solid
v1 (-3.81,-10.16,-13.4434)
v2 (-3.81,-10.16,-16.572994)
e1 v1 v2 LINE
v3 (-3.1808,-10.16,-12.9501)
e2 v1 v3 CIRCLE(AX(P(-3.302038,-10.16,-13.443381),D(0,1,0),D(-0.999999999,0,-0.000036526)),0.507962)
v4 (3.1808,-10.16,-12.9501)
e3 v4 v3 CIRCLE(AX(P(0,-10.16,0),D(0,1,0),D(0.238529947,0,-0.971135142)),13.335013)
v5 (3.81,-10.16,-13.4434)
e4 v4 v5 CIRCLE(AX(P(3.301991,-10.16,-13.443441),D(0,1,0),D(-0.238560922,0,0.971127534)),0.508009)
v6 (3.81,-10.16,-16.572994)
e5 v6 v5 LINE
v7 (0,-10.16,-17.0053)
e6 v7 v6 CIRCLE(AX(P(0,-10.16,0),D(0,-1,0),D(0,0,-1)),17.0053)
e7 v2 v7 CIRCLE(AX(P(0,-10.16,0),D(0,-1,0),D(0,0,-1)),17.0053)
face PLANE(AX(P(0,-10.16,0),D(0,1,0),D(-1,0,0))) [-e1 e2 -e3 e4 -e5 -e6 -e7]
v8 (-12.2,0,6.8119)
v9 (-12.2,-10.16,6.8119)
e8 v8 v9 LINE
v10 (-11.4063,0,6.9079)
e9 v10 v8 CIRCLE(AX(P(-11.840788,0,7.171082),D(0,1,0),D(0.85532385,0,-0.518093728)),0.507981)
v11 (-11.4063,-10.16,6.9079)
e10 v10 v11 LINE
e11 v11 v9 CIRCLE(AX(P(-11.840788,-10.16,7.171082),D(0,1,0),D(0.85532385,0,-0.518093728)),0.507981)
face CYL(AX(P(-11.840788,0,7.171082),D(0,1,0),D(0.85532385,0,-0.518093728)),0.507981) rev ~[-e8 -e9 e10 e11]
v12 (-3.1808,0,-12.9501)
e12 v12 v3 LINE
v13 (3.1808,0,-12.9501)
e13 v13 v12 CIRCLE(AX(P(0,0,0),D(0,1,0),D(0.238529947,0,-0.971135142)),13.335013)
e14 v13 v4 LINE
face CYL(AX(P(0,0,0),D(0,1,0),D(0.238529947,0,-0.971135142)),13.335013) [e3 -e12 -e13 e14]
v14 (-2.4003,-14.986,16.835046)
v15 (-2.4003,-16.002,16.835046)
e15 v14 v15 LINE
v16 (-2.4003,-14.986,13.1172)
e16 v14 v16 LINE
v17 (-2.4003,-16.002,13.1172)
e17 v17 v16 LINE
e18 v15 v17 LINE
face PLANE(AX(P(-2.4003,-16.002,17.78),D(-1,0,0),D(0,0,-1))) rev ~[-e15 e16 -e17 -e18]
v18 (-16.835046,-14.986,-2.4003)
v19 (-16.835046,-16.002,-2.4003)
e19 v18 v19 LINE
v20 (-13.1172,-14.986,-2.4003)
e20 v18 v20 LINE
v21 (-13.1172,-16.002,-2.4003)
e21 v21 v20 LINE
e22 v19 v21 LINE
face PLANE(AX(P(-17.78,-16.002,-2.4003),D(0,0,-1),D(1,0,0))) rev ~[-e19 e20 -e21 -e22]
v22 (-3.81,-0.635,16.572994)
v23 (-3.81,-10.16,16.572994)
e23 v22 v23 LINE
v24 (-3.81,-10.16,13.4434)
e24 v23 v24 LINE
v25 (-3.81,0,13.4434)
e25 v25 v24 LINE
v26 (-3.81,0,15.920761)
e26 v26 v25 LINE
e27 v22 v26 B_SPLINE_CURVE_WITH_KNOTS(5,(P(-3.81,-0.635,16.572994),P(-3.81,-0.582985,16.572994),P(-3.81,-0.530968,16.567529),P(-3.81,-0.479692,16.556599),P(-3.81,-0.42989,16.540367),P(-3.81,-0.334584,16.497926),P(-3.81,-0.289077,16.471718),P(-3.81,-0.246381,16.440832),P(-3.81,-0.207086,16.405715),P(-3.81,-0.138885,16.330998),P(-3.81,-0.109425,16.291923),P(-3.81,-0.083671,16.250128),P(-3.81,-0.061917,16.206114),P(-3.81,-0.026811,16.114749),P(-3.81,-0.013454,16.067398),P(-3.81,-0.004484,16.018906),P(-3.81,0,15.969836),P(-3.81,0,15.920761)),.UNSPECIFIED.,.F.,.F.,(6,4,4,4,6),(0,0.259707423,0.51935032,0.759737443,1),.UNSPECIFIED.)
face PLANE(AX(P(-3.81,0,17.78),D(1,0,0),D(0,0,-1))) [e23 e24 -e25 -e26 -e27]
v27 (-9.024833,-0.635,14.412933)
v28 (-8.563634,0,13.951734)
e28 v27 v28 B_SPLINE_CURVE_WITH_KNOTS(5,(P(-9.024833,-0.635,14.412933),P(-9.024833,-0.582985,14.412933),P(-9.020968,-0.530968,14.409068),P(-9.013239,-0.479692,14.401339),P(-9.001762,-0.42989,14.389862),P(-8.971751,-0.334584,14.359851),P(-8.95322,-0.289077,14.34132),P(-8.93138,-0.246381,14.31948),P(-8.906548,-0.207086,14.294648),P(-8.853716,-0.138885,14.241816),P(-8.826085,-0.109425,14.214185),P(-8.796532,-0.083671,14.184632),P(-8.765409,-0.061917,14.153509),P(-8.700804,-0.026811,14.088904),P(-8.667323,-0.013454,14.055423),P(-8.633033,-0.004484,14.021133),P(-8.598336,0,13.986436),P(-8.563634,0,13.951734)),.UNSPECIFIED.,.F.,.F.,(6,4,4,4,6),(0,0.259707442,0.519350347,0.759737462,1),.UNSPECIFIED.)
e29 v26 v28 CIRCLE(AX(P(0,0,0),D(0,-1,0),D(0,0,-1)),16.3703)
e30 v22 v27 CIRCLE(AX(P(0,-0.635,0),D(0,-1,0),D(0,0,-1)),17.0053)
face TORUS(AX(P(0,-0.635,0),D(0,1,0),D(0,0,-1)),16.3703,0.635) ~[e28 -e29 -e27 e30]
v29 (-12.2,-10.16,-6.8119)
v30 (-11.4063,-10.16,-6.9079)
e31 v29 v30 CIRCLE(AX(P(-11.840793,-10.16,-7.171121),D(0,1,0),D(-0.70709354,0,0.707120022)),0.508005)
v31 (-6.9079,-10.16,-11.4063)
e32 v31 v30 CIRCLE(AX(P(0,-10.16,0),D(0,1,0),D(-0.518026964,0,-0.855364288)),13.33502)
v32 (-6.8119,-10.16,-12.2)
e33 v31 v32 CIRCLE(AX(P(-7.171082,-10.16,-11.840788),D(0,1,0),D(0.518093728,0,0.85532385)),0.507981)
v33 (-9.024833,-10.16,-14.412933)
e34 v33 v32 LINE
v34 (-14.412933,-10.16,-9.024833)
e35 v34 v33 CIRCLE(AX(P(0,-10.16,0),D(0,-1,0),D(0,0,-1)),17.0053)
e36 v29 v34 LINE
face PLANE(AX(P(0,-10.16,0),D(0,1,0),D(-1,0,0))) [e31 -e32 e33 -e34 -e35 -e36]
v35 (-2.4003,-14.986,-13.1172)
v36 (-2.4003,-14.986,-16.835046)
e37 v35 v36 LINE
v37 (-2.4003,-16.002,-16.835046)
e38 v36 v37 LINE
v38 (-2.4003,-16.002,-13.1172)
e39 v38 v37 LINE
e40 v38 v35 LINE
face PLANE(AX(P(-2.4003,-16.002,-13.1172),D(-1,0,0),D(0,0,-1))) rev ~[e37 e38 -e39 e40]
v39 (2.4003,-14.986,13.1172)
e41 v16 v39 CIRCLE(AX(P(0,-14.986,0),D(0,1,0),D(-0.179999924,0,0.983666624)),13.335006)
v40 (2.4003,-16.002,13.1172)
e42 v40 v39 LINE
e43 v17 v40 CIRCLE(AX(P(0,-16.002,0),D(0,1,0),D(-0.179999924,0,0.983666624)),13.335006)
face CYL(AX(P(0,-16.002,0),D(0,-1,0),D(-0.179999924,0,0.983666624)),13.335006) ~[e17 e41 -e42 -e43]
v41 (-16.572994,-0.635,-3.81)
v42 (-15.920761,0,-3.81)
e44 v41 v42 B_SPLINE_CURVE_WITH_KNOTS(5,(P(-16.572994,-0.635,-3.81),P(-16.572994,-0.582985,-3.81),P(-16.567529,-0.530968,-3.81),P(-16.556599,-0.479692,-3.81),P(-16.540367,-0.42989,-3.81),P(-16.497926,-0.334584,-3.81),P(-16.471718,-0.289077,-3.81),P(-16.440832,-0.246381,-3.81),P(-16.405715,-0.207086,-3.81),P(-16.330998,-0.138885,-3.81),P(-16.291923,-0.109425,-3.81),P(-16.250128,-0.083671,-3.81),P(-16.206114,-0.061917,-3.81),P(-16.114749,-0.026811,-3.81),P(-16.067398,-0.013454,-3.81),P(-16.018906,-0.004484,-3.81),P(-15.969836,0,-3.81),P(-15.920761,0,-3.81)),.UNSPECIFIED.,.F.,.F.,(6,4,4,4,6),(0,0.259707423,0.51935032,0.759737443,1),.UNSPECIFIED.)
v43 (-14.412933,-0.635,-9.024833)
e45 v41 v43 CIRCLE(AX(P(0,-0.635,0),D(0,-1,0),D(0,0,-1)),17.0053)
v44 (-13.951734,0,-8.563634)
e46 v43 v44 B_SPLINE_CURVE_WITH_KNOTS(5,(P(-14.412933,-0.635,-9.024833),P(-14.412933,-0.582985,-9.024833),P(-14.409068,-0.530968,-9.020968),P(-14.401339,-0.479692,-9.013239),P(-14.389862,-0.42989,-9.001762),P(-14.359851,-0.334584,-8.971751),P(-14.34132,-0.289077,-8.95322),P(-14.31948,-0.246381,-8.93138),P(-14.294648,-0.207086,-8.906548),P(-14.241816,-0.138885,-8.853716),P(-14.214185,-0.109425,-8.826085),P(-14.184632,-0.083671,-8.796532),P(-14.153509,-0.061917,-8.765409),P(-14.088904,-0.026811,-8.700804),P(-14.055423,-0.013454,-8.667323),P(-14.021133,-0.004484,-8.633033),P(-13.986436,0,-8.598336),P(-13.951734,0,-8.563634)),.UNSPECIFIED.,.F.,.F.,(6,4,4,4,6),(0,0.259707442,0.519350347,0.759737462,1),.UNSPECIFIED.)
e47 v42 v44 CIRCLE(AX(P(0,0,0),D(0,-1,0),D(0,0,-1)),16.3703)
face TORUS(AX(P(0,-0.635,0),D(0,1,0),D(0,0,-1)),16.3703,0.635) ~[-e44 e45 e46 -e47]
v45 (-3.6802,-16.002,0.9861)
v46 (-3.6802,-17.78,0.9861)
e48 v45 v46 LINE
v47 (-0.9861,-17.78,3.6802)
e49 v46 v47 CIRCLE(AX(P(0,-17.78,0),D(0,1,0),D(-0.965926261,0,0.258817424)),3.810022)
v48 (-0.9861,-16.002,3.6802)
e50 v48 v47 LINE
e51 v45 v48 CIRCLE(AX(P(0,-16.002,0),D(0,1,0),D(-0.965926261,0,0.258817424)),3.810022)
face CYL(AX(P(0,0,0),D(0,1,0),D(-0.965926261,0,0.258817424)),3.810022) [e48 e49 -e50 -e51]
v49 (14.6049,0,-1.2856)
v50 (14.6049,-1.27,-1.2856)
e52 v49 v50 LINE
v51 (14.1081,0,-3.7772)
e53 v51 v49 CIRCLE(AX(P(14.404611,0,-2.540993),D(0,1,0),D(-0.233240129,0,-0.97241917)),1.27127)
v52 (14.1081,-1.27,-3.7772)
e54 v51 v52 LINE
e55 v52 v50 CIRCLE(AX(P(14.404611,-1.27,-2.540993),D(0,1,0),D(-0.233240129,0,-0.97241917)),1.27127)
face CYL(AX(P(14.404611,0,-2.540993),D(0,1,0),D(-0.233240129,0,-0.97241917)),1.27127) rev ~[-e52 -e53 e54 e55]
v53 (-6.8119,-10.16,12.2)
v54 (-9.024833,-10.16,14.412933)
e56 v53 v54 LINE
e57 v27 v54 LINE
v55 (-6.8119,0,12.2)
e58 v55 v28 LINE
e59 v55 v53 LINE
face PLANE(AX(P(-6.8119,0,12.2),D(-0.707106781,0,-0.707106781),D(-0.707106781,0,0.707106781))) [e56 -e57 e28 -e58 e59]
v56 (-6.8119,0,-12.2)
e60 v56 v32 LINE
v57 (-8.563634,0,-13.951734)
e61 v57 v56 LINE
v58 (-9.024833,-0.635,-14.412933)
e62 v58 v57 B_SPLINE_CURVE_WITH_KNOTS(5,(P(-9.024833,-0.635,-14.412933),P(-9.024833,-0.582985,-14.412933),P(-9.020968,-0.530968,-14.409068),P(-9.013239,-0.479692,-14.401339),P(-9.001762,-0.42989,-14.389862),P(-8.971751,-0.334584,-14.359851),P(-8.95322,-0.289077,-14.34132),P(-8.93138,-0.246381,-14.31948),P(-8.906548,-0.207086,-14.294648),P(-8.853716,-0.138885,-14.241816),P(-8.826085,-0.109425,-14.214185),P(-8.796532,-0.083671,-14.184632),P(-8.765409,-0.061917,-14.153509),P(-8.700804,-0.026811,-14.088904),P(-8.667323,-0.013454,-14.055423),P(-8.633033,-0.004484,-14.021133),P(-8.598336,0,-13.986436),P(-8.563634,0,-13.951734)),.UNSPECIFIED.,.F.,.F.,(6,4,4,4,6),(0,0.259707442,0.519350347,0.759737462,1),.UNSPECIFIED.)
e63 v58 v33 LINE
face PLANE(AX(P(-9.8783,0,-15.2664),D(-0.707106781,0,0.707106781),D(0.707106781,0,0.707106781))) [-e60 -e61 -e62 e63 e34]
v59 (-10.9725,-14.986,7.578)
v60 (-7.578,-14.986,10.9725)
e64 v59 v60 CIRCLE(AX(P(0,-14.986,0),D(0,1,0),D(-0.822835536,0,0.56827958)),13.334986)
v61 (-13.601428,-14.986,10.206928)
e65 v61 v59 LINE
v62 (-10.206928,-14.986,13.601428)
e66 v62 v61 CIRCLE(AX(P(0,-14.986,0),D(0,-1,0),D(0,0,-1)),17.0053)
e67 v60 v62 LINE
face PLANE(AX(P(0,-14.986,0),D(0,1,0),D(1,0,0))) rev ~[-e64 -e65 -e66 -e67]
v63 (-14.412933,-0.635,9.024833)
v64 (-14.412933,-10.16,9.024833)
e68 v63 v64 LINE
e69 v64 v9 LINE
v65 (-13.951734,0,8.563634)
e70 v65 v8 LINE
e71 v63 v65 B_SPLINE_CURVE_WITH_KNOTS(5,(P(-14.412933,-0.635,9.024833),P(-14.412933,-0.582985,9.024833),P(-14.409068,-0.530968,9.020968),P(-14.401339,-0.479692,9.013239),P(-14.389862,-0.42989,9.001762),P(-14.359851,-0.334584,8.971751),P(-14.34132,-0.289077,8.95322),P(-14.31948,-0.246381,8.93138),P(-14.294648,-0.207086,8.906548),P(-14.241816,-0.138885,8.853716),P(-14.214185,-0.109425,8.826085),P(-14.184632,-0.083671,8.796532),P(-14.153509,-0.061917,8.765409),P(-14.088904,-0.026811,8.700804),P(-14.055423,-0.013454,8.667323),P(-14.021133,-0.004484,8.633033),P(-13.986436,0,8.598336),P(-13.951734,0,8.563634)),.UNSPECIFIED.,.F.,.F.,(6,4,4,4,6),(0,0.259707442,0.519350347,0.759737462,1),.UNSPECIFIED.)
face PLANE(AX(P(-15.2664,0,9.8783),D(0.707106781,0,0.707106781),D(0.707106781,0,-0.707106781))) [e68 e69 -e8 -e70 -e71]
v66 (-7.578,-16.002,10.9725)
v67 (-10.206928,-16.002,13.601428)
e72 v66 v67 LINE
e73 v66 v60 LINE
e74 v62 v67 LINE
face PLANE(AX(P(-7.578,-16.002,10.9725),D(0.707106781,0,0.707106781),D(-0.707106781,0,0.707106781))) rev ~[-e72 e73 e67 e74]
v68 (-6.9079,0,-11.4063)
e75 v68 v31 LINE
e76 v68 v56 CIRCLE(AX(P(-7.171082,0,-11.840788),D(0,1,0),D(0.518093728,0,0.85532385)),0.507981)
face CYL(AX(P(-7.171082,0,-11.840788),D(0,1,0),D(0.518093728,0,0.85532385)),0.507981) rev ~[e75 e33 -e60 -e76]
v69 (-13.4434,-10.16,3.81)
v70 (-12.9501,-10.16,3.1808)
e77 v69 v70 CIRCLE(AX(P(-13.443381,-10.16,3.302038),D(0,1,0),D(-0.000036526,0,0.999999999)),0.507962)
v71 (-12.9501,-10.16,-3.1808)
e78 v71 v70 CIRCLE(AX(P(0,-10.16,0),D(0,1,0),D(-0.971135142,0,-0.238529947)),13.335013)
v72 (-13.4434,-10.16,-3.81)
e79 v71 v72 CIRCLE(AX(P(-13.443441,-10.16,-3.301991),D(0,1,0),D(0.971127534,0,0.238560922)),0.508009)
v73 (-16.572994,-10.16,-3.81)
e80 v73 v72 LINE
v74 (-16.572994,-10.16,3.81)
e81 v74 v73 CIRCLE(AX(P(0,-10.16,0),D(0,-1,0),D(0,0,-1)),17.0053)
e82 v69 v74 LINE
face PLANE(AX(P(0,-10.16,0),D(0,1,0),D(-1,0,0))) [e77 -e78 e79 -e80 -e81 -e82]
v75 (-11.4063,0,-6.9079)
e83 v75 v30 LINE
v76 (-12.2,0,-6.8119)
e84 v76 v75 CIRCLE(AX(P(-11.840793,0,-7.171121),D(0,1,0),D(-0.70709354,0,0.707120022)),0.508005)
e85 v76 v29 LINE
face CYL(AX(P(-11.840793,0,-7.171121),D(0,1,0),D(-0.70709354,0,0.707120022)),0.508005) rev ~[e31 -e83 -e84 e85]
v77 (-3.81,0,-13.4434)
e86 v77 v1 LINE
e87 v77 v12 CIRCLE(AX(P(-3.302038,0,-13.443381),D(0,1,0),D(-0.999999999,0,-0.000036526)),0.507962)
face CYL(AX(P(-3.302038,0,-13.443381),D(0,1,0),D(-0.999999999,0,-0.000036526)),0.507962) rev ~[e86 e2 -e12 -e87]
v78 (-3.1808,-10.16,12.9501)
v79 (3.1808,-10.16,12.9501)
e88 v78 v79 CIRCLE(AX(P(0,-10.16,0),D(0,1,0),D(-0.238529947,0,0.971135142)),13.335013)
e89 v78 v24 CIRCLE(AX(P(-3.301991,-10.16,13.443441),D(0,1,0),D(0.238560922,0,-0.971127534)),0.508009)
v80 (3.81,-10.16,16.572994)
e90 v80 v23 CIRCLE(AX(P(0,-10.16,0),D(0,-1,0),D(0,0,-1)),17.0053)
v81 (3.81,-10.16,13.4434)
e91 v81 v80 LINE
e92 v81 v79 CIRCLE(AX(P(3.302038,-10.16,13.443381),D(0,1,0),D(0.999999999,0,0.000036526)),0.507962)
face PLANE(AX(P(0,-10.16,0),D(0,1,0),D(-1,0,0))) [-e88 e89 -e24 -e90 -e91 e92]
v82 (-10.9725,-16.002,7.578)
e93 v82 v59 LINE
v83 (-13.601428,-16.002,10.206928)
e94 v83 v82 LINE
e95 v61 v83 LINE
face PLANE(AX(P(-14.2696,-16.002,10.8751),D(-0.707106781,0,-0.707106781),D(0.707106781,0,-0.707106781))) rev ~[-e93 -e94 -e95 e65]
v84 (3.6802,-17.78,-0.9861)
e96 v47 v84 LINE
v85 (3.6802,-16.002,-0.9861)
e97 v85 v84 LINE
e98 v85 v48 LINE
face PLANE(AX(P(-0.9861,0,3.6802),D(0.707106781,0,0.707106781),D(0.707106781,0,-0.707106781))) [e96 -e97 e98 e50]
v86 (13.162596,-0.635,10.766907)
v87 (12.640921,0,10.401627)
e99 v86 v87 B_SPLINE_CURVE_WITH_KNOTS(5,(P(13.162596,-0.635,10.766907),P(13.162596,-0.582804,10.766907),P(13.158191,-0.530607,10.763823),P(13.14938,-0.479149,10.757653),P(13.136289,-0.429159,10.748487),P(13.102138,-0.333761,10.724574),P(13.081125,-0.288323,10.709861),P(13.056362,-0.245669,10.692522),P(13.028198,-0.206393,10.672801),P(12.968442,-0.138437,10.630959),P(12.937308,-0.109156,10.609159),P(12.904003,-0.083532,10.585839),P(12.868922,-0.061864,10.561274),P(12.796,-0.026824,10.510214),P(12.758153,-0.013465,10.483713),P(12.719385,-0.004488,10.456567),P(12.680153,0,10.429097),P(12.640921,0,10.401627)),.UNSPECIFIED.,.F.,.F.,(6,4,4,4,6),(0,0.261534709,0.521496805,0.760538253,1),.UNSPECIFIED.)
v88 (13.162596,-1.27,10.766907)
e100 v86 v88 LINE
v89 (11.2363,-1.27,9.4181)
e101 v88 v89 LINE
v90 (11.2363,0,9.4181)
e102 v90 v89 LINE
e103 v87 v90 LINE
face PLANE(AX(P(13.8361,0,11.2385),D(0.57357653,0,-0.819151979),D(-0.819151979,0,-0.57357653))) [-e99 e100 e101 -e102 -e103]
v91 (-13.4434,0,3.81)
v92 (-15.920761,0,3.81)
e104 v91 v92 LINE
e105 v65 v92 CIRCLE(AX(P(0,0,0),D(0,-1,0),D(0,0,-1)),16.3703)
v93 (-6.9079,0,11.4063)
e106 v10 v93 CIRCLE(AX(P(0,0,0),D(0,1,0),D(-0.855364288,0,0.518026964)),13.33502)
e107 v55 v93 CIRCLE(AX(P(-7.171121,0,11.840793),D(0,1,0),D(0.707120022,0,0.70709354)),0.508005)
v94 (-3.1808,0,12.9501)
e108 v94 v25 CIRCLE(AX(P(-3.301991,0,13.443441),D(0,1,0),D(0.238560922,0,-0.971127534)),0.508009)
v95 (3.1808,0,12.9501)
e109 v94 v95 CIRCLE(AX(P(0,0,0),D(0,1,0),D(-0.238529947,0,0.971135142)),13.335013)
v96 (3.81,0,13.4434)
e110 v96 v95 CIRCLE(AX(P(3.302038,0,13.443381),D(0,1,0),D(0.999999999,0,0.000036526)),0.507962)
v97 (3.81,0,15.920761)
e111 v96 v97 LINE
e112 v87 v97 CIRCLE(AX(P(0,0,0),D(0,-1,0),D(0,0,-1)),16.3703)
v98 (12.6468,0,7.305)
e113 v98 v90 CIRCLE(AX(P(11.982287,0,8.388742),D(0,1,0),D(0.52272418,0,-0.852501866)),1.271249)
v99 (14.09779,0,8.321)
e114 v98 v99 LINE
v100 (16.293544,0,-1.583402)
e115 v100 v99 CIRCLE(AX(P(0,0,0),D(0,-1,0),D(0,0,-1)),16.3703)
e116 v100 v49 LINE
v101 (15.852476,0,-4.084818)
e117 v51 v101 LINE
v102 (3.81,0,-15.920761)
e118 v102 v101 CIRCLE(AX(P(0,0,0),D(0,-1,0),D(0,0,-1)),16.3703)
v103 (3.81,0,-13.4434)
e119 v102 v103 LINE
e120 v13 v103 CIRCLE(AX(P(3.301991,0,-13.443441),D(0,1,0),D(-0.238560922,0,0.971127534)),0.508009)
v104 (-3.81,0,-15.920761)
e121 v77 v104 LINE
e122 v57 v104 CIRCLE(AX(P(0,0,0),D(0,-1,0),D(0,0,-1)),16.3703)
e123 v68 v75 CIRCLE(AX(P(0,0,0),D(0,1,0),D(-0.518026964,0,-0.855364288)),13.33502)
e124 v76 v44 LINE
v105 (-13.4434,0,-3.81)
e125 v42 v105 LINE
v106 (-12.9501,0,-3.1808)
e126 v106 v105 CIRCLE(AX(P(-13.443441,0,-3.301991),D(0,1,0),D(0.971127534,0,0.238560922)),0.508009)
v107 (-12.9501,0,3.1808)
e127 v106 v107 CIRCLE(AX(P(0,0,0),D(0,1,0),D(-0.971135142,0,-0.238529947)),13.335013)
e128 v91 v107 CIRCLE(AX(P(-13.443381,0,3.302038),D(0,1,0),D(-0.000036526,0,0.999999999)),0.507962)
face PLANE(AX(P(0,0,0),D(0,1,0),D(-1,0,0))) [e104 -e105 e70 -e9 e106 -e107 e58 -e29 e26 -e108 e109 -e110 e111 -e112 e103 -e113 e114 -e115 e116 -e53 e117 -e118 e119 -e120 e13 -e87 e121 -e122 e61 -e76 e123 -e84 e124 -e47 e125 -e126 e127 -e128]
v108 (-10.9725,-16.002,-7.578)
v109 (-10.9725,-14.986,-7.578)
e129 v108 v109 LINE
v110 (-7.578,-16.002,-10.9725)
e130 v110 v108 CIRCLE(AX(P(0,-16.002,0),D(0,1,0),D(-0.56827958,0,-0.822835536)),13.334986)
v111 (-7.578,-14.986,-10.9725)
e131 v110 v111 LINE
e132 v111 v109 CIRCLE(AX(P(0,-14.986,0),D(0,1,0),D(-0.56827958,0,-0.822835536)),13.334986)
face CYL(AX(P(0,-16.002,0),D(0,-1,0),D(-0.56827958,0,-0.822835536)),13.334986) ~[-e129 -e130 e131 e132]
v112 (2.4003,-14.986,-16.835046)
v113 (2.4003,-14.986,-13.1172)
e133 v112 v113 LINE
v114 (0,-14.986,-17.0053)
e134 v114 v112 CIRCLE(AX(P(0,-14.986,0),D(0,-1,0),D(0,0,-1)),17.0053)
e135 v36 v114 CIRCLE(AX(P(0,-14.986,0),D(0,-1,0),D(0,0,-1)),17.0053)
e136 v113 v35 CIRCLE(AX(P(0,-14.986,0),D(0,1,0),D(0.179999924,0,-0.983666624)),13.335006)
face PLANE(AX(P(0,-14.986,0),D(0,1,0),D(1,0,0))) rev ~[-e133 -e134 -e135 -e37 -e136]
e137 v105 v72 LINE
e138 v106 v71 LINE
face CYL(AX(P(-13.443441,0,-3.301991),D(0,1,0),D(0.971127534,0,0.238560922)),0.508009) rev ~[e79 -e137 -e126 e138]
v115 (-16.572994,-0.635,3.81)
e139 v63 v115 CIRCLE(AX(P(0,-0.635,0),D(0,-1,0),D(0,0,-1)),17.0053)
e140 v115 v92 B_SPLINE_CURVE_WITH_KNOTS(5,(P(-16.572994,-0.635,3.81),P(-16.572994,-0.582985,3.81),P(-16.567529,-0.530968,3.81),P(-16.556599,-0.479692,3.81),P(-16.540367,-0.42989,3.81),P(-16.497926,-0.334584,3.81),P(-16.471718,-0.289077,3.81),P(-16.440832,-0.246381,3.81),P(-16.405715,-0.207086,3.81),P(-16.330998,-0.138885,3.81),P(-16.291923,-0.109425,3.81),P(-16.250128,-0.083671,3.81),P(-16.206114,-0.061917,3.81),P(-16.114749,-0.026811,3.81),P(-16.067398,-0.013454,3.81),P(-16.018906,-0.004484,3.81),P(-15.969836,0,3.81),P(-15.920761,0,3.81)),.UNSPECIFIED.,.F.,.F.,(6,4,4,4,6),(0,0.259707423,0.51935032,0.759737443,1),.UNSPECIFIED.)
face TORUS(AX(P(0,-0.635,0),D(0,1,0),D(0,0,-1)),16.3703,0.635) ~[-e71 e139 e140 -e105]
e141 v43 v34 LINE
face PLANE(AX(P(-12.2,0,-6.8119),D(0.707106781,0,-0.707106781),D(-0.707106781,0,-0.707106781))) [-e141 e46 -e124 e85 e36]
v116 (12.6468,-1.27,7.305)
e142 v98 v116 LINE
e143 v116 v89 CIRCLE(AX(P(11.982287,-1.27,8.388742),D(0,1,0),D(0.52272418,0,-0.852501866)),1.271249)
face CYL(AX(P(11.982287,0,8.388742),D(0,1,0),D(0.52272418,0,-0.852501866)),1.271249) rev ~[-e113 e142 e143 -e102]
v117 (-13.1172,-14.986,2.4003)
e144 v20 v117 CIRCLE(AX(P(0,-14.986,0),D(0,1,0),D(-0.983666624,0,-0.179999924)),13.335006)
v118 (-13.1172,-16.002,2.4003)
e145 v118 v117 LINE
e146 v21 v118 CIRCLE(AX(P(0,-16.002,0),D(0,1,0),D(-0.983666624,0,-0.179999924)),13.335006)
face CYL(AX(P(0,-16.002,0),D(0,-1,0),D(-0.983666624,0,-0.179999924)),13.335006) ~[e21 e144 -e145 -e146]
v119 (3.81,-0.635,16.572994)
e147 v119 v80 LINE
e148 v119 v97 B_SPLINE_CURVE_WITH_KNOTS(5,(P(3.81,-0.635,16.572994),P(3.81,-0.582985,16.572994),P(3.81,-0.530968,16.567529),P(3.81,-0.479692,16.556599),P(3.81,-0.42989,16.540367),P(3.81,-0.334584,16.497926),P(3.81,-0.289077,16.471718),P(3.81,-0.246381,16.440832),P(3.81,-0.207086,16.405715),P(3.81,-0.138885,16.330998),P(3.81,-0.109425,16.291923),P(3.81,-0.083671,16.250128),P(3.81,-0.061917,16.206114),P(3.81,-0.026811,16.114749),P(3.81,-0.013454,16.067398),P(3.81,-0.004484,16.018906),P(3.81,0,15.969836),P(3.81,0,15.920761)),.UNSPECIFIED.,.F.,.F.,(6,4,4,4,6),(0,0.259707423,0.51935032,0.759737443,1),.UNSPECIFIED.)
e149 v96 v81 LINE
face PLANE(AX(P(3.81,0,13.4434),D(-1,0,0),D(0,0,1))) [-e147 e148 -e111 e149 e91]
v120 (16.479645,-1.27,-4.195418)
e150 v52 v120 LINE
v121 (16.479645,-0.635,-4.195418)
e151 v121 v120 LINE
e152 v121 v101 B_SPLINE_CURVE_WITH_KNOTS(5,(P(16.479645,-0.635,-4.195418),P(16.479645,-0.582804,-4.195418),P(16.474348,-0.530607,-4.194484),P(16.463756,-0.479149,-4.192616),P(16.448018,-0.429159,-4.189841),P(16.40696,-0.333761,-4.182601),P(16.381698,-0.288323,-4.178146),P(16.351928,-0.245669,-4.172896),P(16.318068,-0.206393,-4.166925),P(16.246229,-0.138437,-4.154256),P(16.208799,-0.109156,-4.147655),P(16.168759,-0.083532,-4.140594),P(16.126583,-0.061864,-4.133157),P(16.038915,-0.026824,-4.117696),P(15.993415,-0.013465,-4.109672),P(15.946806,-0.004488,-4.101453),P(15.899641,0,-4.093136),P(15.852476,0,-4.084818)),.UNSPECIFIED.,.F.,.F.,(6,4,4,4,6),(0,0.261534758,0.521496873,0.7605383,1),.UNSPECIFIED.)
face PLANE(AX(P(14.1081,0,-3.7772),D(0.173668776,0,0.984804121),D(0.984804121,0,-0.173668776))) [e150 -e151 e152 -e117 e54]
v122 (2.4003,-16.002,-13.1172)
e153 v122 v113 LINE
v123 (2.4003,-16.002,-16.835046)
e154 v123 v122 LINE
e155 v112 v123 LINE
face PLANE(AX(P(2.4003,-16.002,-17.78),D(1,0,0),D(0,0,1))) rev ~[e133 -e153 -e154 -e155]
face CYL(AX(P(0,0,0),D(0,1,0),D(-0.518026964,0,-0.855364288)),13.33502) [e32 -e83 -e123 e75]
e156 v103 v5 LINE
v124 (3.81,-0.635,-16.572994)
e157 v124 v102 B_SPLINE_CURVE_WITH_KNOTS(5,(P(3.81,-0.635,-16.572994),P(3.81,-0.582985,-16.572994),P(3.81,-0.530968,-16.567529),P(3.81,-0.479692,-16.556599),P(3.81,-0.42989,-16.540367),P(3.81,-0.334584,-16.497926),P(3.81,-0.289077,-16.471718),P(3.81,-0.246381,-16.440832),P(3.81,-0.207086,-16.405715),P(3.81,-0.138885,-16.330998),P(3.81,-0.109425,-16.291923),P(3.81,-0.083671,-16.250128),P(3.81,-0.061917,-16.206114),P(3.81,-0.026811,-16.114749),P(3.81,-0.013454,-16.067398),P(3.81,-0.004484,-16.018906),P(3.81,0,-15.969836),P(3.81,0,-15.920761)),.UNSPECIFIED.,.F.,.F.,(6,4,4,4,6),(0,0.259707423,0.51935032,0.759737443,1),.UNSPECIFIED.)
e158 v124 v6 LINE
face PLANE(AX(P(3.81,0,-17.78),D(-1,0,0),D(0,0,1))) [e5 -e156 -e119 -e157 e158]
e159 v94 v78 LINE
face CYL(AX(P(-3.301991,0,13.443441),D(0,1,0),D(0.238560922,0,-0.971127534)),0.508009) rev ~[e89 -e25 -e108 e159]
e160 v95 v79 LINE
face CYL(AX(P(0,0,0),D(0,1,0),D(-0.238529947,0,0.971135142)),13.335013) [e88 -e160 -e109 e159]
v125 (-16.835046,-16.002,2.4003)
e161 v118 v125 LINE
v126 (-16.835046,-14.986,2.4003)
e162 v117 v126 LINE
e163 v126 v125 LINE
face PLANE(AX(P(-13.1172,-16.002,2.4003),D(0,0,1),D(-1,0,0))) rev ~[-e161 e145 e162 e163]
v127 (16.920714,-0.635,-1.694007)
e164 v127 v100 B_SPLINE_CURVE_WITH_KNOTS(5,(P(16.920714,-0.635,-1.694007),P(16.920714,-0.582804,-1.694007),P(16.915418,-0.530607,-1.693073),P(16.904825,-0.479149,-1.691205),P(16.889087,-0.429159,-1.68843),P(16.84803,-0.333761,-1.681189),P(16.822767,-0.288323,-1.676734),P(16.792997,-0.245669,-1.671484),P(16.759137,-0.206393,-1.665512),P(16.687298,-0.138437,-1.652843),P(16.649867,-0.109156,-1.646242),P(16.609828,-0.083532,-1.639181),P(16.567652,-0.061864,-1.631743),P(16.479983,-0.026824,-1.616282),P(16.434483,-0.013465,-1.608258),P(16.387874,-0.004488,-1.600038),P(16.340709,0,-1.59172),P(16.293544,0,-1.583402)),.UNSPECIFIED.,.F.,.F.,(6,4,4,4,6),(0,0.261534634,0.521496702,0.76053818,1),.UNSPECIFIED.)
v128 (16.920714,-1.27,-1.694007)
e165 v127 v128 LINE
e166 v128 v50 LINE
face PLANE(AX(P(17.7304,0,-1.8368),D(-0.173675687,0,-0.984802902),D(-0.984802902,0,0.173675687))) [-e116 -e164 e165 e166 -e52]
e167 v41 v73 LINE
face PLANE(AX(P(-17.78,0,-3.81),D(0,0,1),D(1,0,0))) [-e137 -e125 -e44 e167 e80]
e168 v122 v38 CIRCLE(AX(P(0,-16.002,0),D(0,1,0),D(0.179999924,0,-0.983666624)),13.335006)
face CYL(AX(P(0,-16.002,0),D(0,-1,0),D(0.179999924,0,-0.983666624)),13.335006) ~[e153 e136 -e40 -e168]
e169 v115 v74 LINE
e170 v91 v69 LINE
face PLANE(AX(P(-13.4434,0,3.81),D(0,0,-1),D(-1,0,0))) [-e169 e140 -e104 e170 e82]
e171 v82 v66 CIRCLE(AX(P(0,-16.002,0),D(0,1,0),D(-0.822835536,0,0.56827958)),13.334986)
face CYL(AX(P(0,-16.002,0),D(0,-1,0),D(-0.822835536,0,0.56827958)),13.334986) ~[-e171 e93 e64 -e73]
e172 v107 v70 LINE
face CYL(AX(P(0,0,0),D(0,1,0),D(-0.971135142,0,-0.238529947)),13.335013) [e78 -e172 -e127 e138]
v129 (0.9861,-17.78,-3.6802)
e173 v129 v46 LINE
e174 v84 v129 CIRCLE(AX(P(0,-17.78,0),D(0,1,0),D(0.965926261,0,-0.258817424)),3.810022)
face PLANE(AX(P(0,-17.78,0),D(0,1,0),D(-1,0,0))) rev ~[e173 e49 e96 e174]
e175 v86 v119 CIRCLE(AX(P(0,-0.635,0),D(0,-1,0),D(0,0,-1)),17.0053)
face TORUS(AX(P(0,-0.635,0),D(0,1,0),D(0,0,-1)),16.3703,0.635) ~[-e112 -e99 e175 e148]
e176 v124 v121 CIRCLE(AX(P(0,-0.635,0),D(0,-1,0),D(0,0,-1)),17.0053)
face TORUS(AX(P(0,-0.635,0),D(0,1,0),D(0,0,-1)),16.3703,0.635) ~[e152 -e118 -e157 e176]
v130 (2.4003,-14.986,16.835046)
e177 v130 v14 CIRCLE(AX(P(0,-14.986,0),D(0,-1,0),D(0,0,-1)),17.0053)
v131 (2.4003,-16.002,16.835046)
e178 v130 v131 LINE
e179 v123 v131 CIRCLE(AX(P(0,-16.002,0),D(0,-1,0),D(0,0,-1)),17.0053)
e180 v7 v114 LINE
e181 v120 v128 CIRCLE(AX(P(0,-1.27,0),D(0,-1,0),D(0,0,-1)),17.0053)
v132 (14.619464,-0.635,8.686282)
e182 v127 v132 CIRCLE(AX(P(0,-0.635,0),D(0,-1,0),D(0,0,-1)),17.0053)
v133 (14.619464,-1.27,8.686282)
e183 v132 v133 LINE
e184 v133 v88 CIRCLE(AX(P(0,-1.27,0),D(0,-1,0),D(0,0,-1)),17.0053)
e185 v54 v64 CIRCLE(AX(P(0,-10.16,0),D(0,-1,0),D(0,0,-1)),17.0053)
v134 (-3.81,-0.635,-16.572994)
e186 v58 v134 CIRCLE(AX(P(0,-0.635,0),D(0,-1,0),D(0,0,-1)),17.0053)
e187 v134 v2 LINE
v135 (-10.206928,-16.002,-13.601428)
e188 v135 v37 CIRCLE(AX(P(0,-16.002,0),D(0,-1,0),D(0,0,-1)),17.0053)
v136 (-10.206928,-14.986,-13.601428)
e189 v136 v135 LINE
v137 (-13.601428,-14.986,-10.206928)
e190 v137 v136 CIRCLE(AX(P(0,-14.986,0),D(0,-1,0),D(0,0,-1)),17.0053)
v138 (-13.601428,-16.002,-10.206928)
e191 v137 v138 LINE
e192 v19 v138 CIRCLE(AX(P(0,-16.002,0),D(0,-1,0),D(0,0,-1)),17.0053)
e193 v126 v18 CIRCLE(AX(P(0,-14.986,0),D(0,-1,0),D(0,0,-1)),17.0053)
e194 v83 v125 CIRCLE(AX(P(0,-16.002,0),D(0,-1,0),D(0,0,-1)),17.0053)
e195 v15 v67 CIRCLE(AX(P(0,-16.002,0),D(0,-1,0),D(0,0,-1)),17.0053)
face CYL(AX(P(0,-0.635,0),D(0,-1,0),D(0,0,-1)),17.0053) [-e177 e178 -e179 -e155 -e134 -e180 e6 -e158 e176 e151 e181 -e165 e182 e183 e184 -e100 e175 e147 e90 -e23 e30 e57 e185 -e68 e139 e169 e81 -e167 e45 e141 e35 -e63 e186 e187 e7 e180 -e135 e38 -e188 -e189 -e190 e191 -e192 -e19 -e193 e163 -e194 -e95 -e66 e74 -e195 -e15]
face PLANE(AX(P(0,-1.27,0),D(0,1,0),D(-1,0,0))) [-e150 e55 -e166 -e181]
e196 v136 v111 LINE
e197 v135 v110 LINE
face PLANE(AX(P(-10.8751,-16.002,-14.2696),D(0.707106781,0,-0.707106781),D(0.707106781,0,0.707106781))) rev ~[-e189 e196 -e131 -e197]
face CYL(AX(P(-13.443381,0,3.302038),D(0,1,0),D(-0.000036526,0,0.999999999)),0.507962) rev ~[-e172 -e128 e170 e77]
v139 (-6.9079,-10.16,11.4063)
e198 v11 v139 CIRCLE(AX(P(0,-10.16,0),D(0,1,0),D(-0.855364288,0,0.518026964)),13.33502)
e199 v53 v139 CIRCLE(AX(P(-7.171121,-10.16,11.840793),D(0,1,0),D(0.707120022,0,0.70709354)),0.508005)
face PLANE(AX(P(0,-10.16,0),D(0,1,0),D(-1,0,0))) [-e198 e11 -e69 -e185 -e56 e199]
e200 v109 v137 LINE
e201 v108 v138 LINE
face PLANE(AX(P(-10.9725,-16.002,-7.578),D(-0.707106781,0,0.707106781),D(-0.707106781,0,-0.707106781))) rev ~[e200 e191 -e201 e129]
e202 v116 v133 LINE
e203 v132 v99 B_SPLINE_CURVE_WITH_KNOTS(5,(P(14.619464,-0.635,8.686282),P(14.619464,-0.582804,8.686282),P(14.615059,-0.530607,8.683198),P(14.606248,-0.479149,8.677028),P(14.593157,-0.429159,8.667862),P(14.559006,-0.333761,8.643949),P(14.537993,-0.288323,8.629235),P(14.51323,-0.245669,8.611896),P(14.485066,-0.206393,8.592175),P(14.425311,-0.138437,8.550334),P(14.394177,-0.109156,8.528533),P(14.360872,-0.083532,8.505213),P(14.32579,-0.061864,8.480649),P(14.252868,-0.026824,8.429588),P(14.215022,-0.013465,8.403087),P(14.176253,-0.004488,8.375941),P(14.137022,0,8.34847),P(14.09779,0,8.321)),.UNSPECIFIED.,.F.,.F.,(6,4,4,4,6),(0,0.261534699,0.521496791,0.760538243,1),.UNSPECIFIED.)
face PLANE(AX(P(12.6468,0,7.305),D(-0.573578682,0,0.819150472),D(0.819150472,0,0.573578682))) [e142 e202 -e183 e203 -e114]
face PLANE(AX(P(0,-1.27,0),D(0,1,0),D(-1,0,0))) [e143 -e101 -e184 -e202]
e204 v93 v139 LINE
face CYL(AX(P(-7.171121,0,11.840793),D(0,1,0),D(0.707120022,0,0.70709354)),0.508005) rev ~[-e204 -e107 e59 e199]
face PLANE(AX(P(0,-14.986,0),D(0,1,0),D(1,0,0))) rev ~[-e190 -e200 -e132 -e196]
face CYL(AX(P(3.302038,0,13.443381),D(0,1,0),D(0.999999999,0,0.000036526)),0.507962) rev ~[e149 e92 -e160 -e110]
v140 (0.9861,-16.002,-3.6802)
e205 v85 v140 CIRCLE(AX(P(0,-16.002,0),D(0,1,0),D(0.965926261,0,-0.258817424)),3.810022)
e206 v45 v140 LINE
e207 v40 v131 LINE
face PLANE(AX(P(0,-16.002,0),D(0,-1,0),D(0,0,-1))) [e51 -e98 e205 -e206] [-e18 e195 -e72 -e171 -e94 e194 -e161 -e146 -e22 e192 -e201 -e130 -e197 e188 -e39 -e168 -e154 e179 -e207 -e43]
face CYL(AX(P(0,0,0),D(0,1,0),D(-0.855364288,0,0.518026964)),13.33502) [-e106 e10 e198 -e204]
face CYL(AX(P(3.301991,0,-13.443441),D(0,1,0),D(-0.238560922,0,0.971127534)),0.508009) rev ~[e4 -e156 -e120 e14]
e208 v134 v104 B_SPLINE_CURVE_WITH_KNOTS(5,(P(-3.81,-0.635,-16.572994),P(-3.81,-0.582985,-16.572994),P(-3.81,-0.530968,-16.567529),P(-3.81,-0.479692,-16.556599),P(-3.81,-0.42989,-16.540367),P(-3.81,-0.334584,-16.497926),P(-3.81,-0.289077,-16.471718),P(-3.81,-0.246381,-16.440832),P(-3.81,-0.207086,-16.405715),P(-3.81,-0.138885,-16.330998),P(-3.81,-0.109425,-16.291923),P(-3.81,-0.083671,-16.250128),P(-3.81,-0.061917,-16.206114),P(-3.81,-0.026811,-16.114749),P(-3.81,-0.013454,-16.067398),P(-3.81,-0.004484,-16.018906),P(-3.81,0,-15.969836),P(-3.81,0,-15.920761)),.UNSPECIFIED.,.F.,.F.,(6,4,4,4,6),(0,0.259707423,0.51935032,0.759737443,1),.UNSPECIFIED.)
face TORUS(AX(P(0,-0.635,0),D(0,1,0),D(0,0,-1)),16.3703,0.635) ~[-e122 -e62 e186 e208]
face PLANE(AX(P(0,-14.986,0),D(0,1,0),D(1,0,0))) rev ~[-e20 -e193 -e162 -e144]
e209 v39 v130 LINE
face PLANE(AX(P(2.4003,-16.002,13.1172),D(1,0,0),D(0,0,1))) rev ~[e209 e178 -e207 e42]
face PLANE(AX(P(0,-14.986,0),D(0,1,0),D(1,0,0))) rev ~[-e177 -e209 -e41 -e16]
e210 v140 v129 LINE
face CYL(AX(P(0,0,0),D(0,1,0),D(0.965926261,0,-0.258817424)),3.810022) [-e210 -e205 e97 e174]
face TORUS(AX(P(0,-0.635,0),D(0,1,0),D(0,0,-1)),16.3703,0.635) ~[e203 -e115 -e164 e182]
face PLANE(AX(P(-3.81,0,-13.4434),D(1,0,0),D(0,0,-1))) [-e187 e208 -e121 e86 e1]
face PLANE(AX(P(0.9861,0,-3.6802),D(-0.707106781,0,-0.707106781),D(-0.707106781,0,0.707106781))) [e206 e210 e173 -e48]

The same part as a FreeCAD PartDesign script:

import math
import FreeCAD as App
import Part
import Sketcher
Q = App.Units.Quantity

doc = App.newDocument("Part")
body = doc.addObject("PartDesign::Body", "Body")

# Sketch on YZ plane
sketch1 = doc.addObject("Sketcher::SketchObject", "Sketch")
body.addObject(sketch1)
sketch1.AttachmentSupport = (doc.YZ_Plane, [""])
sketch1.MapMode = "FlatFace"
sketch1.addGeometry([
    Part.LineSegment(App.Vector(0, 0, 0), App.Vector(-16, 0, 0)),  # 0
    Part.LineSegment(App.Vector(-16, 0, 0), App.Vector(-16, -17, 0)),  # 1
    Part.LineSegment(App.Vector(-16, -17, 0), App.Vector(-0.6, -17, 0)),  # 2
    Part.ArcOfCircle(Part.Circle(App.Vector(-0.6, -16.4, 0), App.Vector(0, 0, 1), 0.6), math.radians(-90), math.radians(0)),  # 3
    Part.LineSegment(App.Vector(0, -16.4, 0), App.Vector(0, 0, 0)),  # 4
], False)
sketch1.addConstraint([
    Sketcher.Constraint("Coincident", 0, 2, 1, 1),
    Sketcher.Constraint("Coincident", 1, 2, 2, 1),
    Sketcher.Constraint("Tangent", 2, 2, 3, 1),
    Sketcher.Constraint("Tangent", 3, 2, 4, 1),
    Sketcher.Constraint("Coincident", 4, 2, 0, 1),
    Sketcher.Constraint("Horizontal", 0),
    Sketcher.Constraint("Vertical", 1),
    Sketcher.Constraint("Horizontal", 2),
    Sketcher.Constraint("Vertical", 4),
    Sketcher.Constraint("Coincident", 4, 2, -1, 1),
    Sketcher.Constraint("Radius", 3, Q("0.025 in")),
    Sketcher.Constraint("DistanceX", 0, 2, 0, 1, Q("0.63 in")),
    Sketcher.Constraint("DistanceY", 1, 2, 1, 1, Q("0.6695 in")),
])
revolution = doc.addObject("PartDesign::Revolution", "Revolution")
body.addObject(revolution)
revolution.Profile = sketch1
revolution.ReferenceAxis = (sketch1, ["H_Axis"])
revolution.Angle = 360

# Sketch on XZ plane
sketch2 = doc.addObject("Sketcher::SketchObject", "Sketch001")
body.addObject(sketch2)
sketch2.AttachmentSupport = (doc.XZ_Plane, [""])
sketch2.MapMode = "FlatFace"
sketch2.addGeometry([
    Part.Circle(App.Vector(0, 0, 0), App.Vector(0, 0, 1), 21.6),  # 0
    Part.LineSegment(App.Vector(-13.4, -3.8, 0), App.Vector(-17.8, -3.8, 0)),  # 1
    Part.ArcOfCircle(Part.Circle(App.Vector(0, 0, 0), App.Vector(0, 0, 1), 18.2), math.radians(-168), math.radians(-147)),  # 2
    Part.LineSegment(App.Vector(-15.3, -9.9, 0), App.Vector(-12.2, -6.8, 0)),  # 3
    Part.ArcOfCircle(Part.Circle(App.Vector(-11.8, -7.2, 0), App.Vector(0, 0, 1), 0.5), math.radians(31), math.radians(135)),  # 4
    Part.ArcOfCircle(Part.Circle(App.Vector(0, 0, 0), App.Vector(0, 0, 1), 13.3), math.radians(-149), math.radians(-121)),  # 5
    Part.ArcOfCircle(Part.Circle(App.Vector(-7.2, -11.8, 0), App.Vector(0, 0, 1), 0.5), math.radians(-45), math.radians(59)),  # 6
    Part.LineSegment(App.Vector(-6.8, -12.2, 0), App.Vector(-9.9, -15.3, 0)),  # 7
    Part.ArcOfCircle(Part.Circle(App.Vector(0, 0, 0), App.Vector(0, 0, 1), 18.2), math.radians(-123), math.radians(-102)),  # 8
    Part.LineSegment(App.Vector(-3.8, -17.8, 0), App.Vector(-3.8, -13.4, 0)),  # 9
    Part.ArcOfCircle(Part.Circle(App.Vector(-3.3, -13.4, 0), App.Vector(0, 0, 1), 0.5), math.radians(76), math.radians(180)),  # 10
    Part.ArcOfCircle(Part.Circle(App.Vector(0, 0, 0), App.Vector(0, 0, 1), 13.3), math.radians(-104), math.radians(-76)),  # 11
    Part.ArcOfCircle(Part.Circle(App.Vector(3.3, -13.4, 0), App.Vector(0, 0, 1), 0.5), math.radians(0), math.radians(104)),  # 12
    Part.LineSegment(App.Vector(3.8, -13.4, 0), App.Vector(3.8, -17.8, 0)),  # 13
    Part.ArcOfCircle(Part.Circle(App.Vector(0, 0, 0), App.Vector(0, 0, 1), 18.2), math.radians(-78), math.radians(78)),  # 14
    Part.LineSegment(App.Vector(3.8, 17.8, 0), App.Vector(3.8, 13.4, 0)),  # 15
    Part.ArcOfCircle(Part.Circle(App.Vector(3.3, 13.4, 0), App.Vector(0, 0, 1), 0.5), math.radians(-104), math.radians(0)),  # 16
    Part.ArcOfCircle(Part.Circle(App.Vector(0, 0, 0), App.Vector(0, 0, 1), 13.3), math.radians(76), math.radians(104)),  # 17
    Part.ArcOfCircle(Part.Circle(App.Vector(-3.3, 13.4, 0), App.Vector(0, 0, 1), 0.5), math.radians(180), math.radians(284)),  # 18
    Part.LineSegment(App.Vector(-3.8, 13.4, 0), App.Vector(-3.8, 17.8, 0)),  # 19
    Part.ArcOfCircle(Part.Circle(App.Vector(0, 0, 0), App.Vector(0, 0, 1), 18.2), math.radians(102), math.radians(123)),  # 20
    Part.LineSegment(App.Vector(-9.9, 15.3, 0), App.Vector(-6.8, 12.2, 0)),  # 21
    Part.ArcOfCircle(Part.Circle(App.Vector(-7.2, 11.8, 0), App.Vector(0, 0, 1), 0.5), math.radians(-59), math.radians(45)),  # 22
    Part.ArcOfCircle(Part.Circle(App.Vector(0, 0, 0), App.Vector(0, 0, 1), 13.3), math.radians(121), math.radians(149)),  # 23
    Part.ArcOfCircle(Part.Circle(App.Vector(-11.8, 7.2, 0), App.Vector(0, 0, 1), 0.5), math.radians(-135), math.radians(-31)),  # 24
    Part.LineSegment(App.Vector(-12.2, 6.8, 0), App.Vector(-15.3, 9.9, 0)),  # 25
    Part.ArcOfCircle(Part.Circle(App.Vector(0, 0, 0), App.Vector(0, 0, 1), 18.2), math.radians(147), math.radians(168)),  # 26
    Part.LineSegment(App.Vector(-17.8, 3.8, 0), App.Vector(-13.4, 3.8, 0)),  # 27
    Part.ArcOfCircle(Part.Circle(App.Vector(-13.4, 3.3, 0), App.Vector(0, 0, 1), 0.5), math.radians(-14), math.radians(90)),  # 28
    Part.ArcOfCircle(Part.Circle(App.Vector(0, 0, 0), App.Vector(0, 0, 1), 13.3), math.radians(166), math.radians(194)),  # 29
    Part.ArcOfCircle(Part.Circle(App.Vector(-13.4, -3.3, 0), App.Vector(0, 0, 1), 0.5), math.radians(-90), math.radians(14)),  # 30
], False)
sketch2.addConstraint([
    Sketcher.Constraint("Coincident", 1, 2, 2, 1),
    Sketcher.Constraint("Coincident", 2, 2, 3, 1),
    Sketcher.Constraint("Tangent", 3, 2, 4, 2),
    Sketcher.Constraint("Tangent", 4, 1, 5, 1),
    Sketcher.Constraint("Tangent", 5, 2, 6, 2),
    Sketcher.Constraint("Tangent", 6, 1, 7, 1),
    Sketcher.Constraint("Coincident", 7, 2, 8, 1),
    Sketcher.Constraint("Coincident", 8, 2, 9, 1),
    Sketcher.Constraint("Tangent", 9, 2, 10, 2),
    Sketcher.Constraint("Tangent", 10, 1, 11, 1),
    Sketcher.Constraint("Tangent", 11, 2, 12, 2),
    Sketcher.Constraint("Tangent", 12, 1, 13, 1),
    Sketcher.Constraint("Coincident", 13, 2, 14, 1),
    Sketcher.Constraint("Coincident", 14, 2, 15, 1),
    Sketcher.Constraint("Tangent", 15, 2, 16, 2),
    Sketcher.Constraint("Tangent", 16, 1, 17, 1),
    Sketcher.Constraint("Tangent", 17, 2, 18, 2),
    Sketcher.Constraint("Tangent", 18, 1, 19, 1),
    Sketcher.Constraint("Coincident", 19, 2, 20, 1),
    Sketcher.Constraint("Coincident", 20, 2, 21, 1),
    Sketcher.Constraint("Tangent", 21, 2, 22, 2),
    Sketcher.Constraint("Tangent", 22, 1, 23, 1),
    Sketcher.Constraint("Tangent", 23, 2, 24, 2),
    Sketcher.Constraint("Tangent", 24, 1, 25, 1),
    Sketcher.Constraint("Coincident", 25, 2, 26, 1),
    Sketcher.Constraint("Coincident", 26, 2, 27, 1),
    Sketcher.Constraint("Tangent", 27, 2, 28, 2),
    Sketcher.Constraint("Tangent", 28, 1, 29, 1),
    Sketcher.Constraint("Tangent", 29, 2, 30, 2),
    Sketcher.Constraint("Tangent", 30, 1, 1, 1),
    Sketcher.Constraint("Horizontal", 1),
    Sketcher.Constraint("Vertical", 9),
    Sketcher.Constraint("Vertical", 13),
    Sketcher.Constraint("Vertical", 15),
    Sketcher.Constraint("Vertical", 19),
    Sketcher.Constraint("Horizontal", 27),
    Sketcher.Constraint("Coincident", 0, 3, -1, 1),
    Sketcher.Constraint("Coincident", 2, 3, -1, 1),
    Sketcher.Constraint("Coincident", 5, 3, -1, 1),
    Sketcher.Constraint("Coincident", 8, 3, -1, 1),
    Sketcher.Constraint("Coincident", 11, 3, -1, 1),
    Sketcher.Constraint("Coincident", 14, 3, -1, 1),
    Sketcher.Constraint("Coincident", 17, 3, -1, 1),
    Sketcher.Constraint("Coincident", 20, 3, -1, 1),
    Sketcher.Constraint("Coincident", 23, 3, -1, 1),
    Sketcher.Constraint("Coincident", 26, 3, -1, 1),
    Sketcher.Constraint("Coincident", 29, 3, -1, 1),
    Sketcher.Constraint("Equal", 4, 6),
    Sketcher.Constraint("Equal", 2, 8),
    Sketcher.Constraint("Equal", 6, 10),
    Sketcher.Constraint("Equal", 5, 11),
    Sketcher.Constraint("Equal", 10, 12),
    Sketcher.Constraint("Equal", 8, 14),
    Sketcher.Constraint("Equal", 12, 16),
    Sketcher.Constraint("Equal", 11, 17),
    Sketcher.Constraint("Equal", 16, 18),
    Sketcher.Constraint("Equal", 14, 20),
    Sketcher.Constraint("Equal", 18, 22),
    Sketcher.Constraint("Equal", 17, 23),
    Sketcher.Constraint("Equal", 22, 24),
    Sketcher.Constraint("Equal", 20, 26),
    Sketcher.Constraint("Equal", 24, 28),
    Sketcher.Constraint("Equal", 23, 29),
    Sketcher.Constraint("Equal", 28, 30),
    Sketcher.Constraint("Symmetric", 6, 1, 21, 2, -1),
    Sketcher.Constraint("Symmetric", 3, 2, 24, 1, -1),
    Sketcher.Constraint("Parallel", 3, 7),
    Sketcher.Constraint("Perpendicular", 7, 21),
    Sketcher.Constraint("Horizontal", 10, 3, 12, 3),
    Sketcher.Constraint("Horizontal", 16, 3, 18, 3),
    Sketcher.Constraint("Vertical", 12, 3, 16, 3),
    Sketcher.Constraint("Vertical", 28, 3, 30, 3),
    Sketcher.Constraint("Equal", 27, 9),
    Sketcher.Constraint("Equal", 3, 7),
    Sketcher.Constraint("Diameter", 0, Q("1.7 in")),
    Sketcher.Constraint("Radius", 4, Q("0.02 in")),
    Sketcher.Constraint("Radius", 5, Q("0.525 in")),
    Sketcher.Constraint("DistanceX", 1, 2, -1, 1, Q("0.7 in")),
    Sketcher.Constraint("Radius", 2, Q("0.7159 in")),
    Sketcher.Constraint("DistanceX", 3, 2, 6, 3, Q("0.198 in")),
])
pocket1 = doc.addObject("PartDesign::Pocket", "Pocket")
body.addObject(pocket1)
pocket1.Profile = sketch2
pocket1.Length = Q("0.4 in")
pocket1.Reversed = True

# Sketch on XZ plane
sketch3 = doc.addObject("Sketcher::SketchObject", "Sketch002")
body.addObject(sketch3)
sketch3.AttachmentSupport = (doc.XZ_Plane, [""])
sketch3.MapMode = "FlatFace"
sketch3.addGeometry([
    Part.Circle(App.Vector(0, 0, 0), App.Vector(0, 0, 1), 20.4599),  # 0
    Part.ArcOfCircle(Part.Circle(App.Vector(0, 0, 0), App.Vector(0, 0, 1), 17.825259), math.radians(39.085549), math.radians(345.914253)),  # 1
    Part.LineSegment(App.Vector(17.2893, -4.3382, 0), App.Vector(14.1081, -3.7772, 0)),  # 2
    Part.ArcOfCircle(Part.Circle(App.Vector(14.4046, -2.541, 0), App.Vector(0, 0, 1), 1.27126), math.radians(80.934823), math.radians(256.512506)),  # 3
    Part.LineSegment(App.Vector(14.6049, -1.2856, 0), App.Vector(17.7304, -1.8368, 0)),  # 4
    Part.ArcOfCircle(Part.Circle(App.Vector(0, 0, 0), App.Vector(0, 0, 1), 17.825259), math.radians(-5.91452), math.radians(30.91442)),  # 5
    Part.LineSegment(App.Vector(15.293, 9.1579, 0), App.Vector(12.6468, 7.305, 0)),  # 6
    Part.ArcOfCircle(Part.Circle(App.Vector(11.9823, 8.3888, 0), App.Vector(0, 0, 1), 1.271292), math.radians(125.933263), math.radians(301.513315)),  # 7
    Part.LineSegment(App.Vector(11.2363, 9.4181, 0), App.Vector(13.8361, 11.2385, 0)),  # 8
], False)
sketch3.addConstraint([
    Sketcher.Constraint("Coincident", 1, 2, 2, 1),
    Sketcher.Constraint("Coincident", 2, 2, 3, 2),
    Sketcher.Constraint("Coincident", 3, 1, 4, 1),
    Sketcher.Constraint("Coincident", 4, 2, 5, 1),
    Sketcher.Constraint("Coincident", 5, 2, 6, 1),
    Sketcher.Constraint("Coincident", 6, 2, 7, 2),
    Sketcher.Constraint("Coincident", 7, 1, 8, 1),
    Sketcher.Constraint("Coincident", 8, 2, 1, 1),
    Sketcher.Constraint("Coincident", 0, 3, -1, 1),
    Sketcher.Constraint("Coincident", 1, 3, -1, 1),
    Sketcher.Constraint("Coincident", 5, 3, -1, 1),
    Sketcher.Constraint("Diameter", 0, Q("40.9198 mm")),
    Sketcher.Constraint("Radius", 1, Q("17.8253 mm")),
    Sketcher.Constraint("Radius", 3, Q("1.2713 mm")),
    Sketcher.Constraint("Radius", 5, Q("17.8253 mm")),
    Sketcher.Constraint("Radius", 7, Q("1.2713 mm")),
    Sketcher.Constraint("DistanceX", -1, 1, 3, 1, Q("0.575 in")),
    Sketcher.Constraint("DistanceX", -1, 1, 3, 3, Q("0.5671 in")),
    Sketcher.Constraint("DistanceY", 1, 2, -1, 1, Q("0.1708 in")),
    Sketcher.Constraint("DistanceY", 2, 2, -1, 1, Q("0.1487 in")),
    Sketcher.Constraint("DistanceX", -1, 1, 6, 2, Q("0.4979 in")),
    Sketcher.Constraint("DistanceY", -1, 1, 6, 2, Q("0.2876 in")),
    Sketcher.Constraint("DistanceY", -1, 1, 7, 1, Q("0.3708 in")),
    Sketcher.Constraint("DistanceY", 3, 3, 7, 3, Q("0.4303 in")),
    Sketcher.Constraint("DistanceX", 7, 3, 2, 2, Q("0.0837 in")),
    Sketcher.Constraint("DistanceY", 4, 2, 3, 1, Q("0.0217 in")),
    Sketcher.Constraint("DistanceX", 7, 1, 5, 2, Q("0.1597 in")),
    Sketcher.Constraint("DistanceY", 7, 3, 8, 2, Q("0.1122 in")),
])
pocket2 = doc.addObject("PartDesign::Pocket", "Pocket001")
body.addObject(pocket2)
pocket2.Profile = sketch3
pocket2.Length = Q("0.05 in")
pocket2.Reversed = True

# Sketch on XZ plane
sketch4 = doc.addObject("Sketcher::SketchObject", "Sketch003")
body.addObject(sketch4)
sketch4.AttachmentSupport = (doc.XZ_Plane, [""])
sketch4.MapMode = "FlatFace"
sketch4.AttachmentOffset = App.Placement(App.Vector(0, 0, 0.63 * 25.4), App.Rotation())
sketch4.addGeometry([
    Part.Circle(App.Vector(0, 0, 0), App.Vector(0, 0, 1), 21.6),  # 0
    Part.LineSegment(App.Vector(-13.1, -2.4, 0), App.Vector(-17.8, -2.4, 0)),  # 1
    Part.ArcOfCircle(Part.Circle(App.Vector(0, 0, 0), App.Vector(0, 0, 1), 17.9), math.radians(-172), math.radians(-143)),  # 2
    Part.LineSegment(App.Vector(-14.3, -10.9, 0), App.Vector(-11, -7.6, 0)),  # 3
    Part.ArcOfCircle(Part.Circle(App.Vector(0, 0, 0), App.Vector(0, 0, 1), 13.3), math.radians(-145), math.radians(-125)),  # 4
    Part.LineSegment(App.Vector(-7.6, -11, 0), App.Vector(-10.9, -14.3, 0)),  # 5
    Part.ArcOfCircle(Part.Circle(App.Vector(0, 0, 0), App.Vector(0, 0, 1), 17.9), math.radians(-127), math.radians(-98)),  # 6
    Part.LineSegment(App.Vector(-2.4, -17.8, 0), App.Vector(-2.4, -13.1, 0)),  # 7
    Part.ArcOfCircle(Part.Circle(App.Vector(0, 0, 0), App.Vector(0, 0, 1), 13.3), math.radians(-100), math.radians(-80)),  # 8
    Part.LineSegment(App.Vector(2.4, -13.1, 0), App.Vector(2.4, -17.8, 0)),  # 9
    Part.ArcOfCircle(Part.Circle(App.Vector(0, 0, 0), App.Vector(0, 0, 1), 17.9), math.radians(-82), math.radians(82)),  # 10
    Part.LineSegment(App.Vector(2.4, 17.8, 0), App.Vector(2.4, 13.1, 0)),  # 11
    Part.ArcOfCircle(Part.Circle(App.Vector(0, 0, 0), App.Vector(0, 0, 1), 13.3), math.radians(80), math.radians(100)),  # 12
    Part.LineSegment(App.Vector(-2.4, 13.1, 0), App.Vector(-2.4, 17.8, 0)),  # 13
    Part.ArcOfCircle(Part.Circle(App.Vector(0, 0, 0), App.Vector(0, 0, 1), 17.9), math.radians(98), math.radians(127)),  # 14
    Part.LineSegment(App.Vector(-10.9, 14.3, 0), App.Vector(-7.6, 11, 0)),  # 15
    Part.ArcOfCircle(Part.Circle(App.Vector(0, 0, 0), App.Vector(0, 0, 1), 13.3), math.radians(125), math.radians(145)),  # 16
    Part.LineSegment(App.Vector(-11, 7.6, 0), App.Vector(-14.3, 10.9, 0)),  # 17
    Part.ArcOfCircle(Part.Circle(App.Vector(0, 0, 0), App.Vector(0, 0, 1), 17.9), math.radians(143), math.radians(172)),  # 18
    Part.LineSegment(App.Vector(-17.8, 2.4, 0), App.Vector(-13.1, 2.4, 0)),  # 19
    Part.ArcOfCircle(Part.Circle(App.Vector(0, 0, 0), App.Vector(0, 0, 1), 13.3), math.radians(170), math.radians(190)),  # 20
], False)
sketch4.addConstraint([
    Sketcher.Constraint("Coincident", 1, 2, 2, 1),
    Sketcher.Constraint("Coincident", 2, 2, 3, 1),
    Sketcher.Constraint("Coincident", 3, 2, 4, 1),
    Sketcher.Constraint("Coincident", 4, 2, 5, 1),
    Sketcher.Constraint("Coincident", 5, 2, 6, 1),
    Sketcher.Constraint("Coincident", 6, 2, 7, 1),
    Sketcher.Constraint("Coincident", 7, 2, 8, 1),
    Sketcher.Constraint("Coincident", 8, 2, 9, 1),
    Sketcher.Constraint("Coincident", 9, 2, 10, 1),
    Sketcher.Constraint("Coincident", 10, 2, 11, 1),
    Sketcher.Constraint("Coincident", 11, 2, 12, 1),
    Sketcher.Constraint("Coincident", 12, 2, 13, 1),
    Sketcher.Constraint("Coincident", 13, 2, 14, 1),
    Sketcher.Constraint("Coincident", 14, 2, 15, 1),
    Sketcher.Constraint("Coincident", 15, 2, 16, 1),
    Sketcher.Constraint("Coincident", 16, 2, 17, 1),
    Sketcher.Constraint("Coincident", 17, 2, 18, 1),
    Sketcher.Constraint("Coincident", 18, 2, 19, 1),
    Sketcher.Constraint("Coincident", 19, 2, 20, 1),
    Sketcher.Constraint("Coincident", 20, 2, 1, 1),
    Sketcher.Constraint("Horizontal", 1),
    Sketcher.Constraint("Vertical", 7),
    Sketcher.Constraint("Vertical", 9),
    Sketcher.Constraint("Vertical", 11),
    Sketcher.Constraint("Vertical", 13),
    Sketcher.Constraint("Horizontal", 19),
    Sketcher.Constraint("Coincident", 0, 3, -1, 1),
    Sketcher.Constraint("Coincident", 2, 3, -1, 1),
    Sketcher.Constraint("Coincident", 4, 3, -1, 1),
    Sketcher.Constraint("Coincident", 6, 3, -1, 1),
    Sketcher.Constraint("Coincident", 8, 3, -1, 1),
    Sketcher.Constraint("Coincident", 10, 3, -1, 1),
    Sketcher.Constraint("Coincident", 12, 3, -1, 1),
    Sketcher.Constraint("Coincident", 14, 3, -1, 1),
    Sketcher.Constraint("Coincident", 16, 3, -1, 1),
    Sketcher.Constraint("Coincident", 18, 3, -1, 1),
    Sketcher.Constraint("Coincident", 20, 3, -1, 1),
    Sketcher.Constraint("Equal", 2, 6),
    Sketcher.Constraint("Equal", 4, 8),
    Sketcher.Constraint("Equal", 6, 10),
    Sketcher.Constraint("Equal", 8, 12),
    Sketcher.Constraint("Equal", 10, 14),
    Sketcher.Constraint("Equal", 12, 16),
    Sketcher.Constraint("Equal", 14, 18),
    Sketcher.Constraint("Equal", 16, 20),
    Sketcher.Constraint("Parallel", 3, 5),
    Sketcher.Constraint("Perpendicular", 5, 15),
    Sketcher.Constraint("Parallel", 15, 17),
    Sketcher.Constraint("Horizontal", 7, 2, 8, 2),
    Sketcher.Constraint("Horizontal", 11, 2, 12, 2),
    Sketcher.Constraint("Vertical", 9, 2, 10, 2),
    Sketcher.Constraint("Vertical", 5, 2, 14, 2),
    Sketcher.Constraint("Vertical", 4, 2, 15, 2),
    Sketcher.Constraint("Vertical", 3, 2, 16, 2),
    Sketcher.Constraint("Vertical", 1, 2, 18, 2),
    Sketcher.Constraint("Equal", 19, 7),
    Sketcher.Constraint("Equal", 3, 5),
    Sketcher.Constraint("Diameter", 0, Q("1.7 in")),
    Sketcher.Constraint("Radius", 4, Q("0.525 in")),
    Sketcher.Constraint("DistanceX", 1, 2, -1, 1, Q("0.7 in")),
    Sketcher.Constraint("Radius", 2, Q("17.9413 mm")),
    Sketcher.Constraint("DistanceX", 3, 2, -1, 1, Q("0.432 in")),
])
pocket3 = doc.addObject("PartDesign::Pocket", "Pocket002")
body.addObject(pocket3)
pocket3.Profile = sketch4
pocket3.Length = Q("0.04 in")

# Sketch on XZ plane
sketch5 = doc.addObject("Sketcher::SketchObject", "Sketch004")
body.addObject(sketch5)
sketch5.AttachmentSupport = (doc.XZ_Plane, [""])
sketch5.MapMode = "FlatFace"
sketch5.addGeometry([
    Part.LineSegment(App.Vector(1, -3.7, 0), App.Vector(-3.7, 1, 0)),
    Part.ArcOfCircle(Part.Circle(App.Vector(0, 0, 0), App.Vector(0, 0, 1), 3.8), math.radians(105), math.radians(165)),
    Part.LineSegment(App.Vector(-1, 3.7, 0), App.Vector(3.7, -1, 0)),
    Part.ArcOfCircle(Part.Circle(App.Vector(0, 0, 0), App.Vector(0, 0, 1), 3.8), math.radians(-75), math.radians(-15)),
], False)
sketch5.addConstraint([
    Sketcher.Constraint("Coincident", 0, 2, 1, 2),
    Sketcher.Constraint("Coincident", 1, 1, 2, 1),
    Sketcher.Constraint("Coincident", 2, 2, 3, 2),
    Sketcher.Constraint("Coincident", 3, 1, 0, 1),
    Sketcher.Constraint("Coincident", 1, 3, -1, 1),
    Sketcher.Constraint("Coincident", 3, 3, -1, 1),
    Sketcher.Constraint("Equal", 1, 3),
    Sketcher.Constraint("Parallel", 0, 2),
    Sketcher.Constraint("Equal", 0, 2),
    Sketcher.Constraint("Radius", 1, Q("0.15 in")),
    Sketcher.Constraint("Angle", 0, Q("135 deg")),
    Sketcher.Constraint("Distance", 0, Q("0.2598 in")),
])
pad1 = doc.addObject("PartDesign::Pad", "Pad")
body.addObject(pad1)
pad1.Profile = sketch5
pad1.Length = Q("0.7 in")

doc.recompute()
